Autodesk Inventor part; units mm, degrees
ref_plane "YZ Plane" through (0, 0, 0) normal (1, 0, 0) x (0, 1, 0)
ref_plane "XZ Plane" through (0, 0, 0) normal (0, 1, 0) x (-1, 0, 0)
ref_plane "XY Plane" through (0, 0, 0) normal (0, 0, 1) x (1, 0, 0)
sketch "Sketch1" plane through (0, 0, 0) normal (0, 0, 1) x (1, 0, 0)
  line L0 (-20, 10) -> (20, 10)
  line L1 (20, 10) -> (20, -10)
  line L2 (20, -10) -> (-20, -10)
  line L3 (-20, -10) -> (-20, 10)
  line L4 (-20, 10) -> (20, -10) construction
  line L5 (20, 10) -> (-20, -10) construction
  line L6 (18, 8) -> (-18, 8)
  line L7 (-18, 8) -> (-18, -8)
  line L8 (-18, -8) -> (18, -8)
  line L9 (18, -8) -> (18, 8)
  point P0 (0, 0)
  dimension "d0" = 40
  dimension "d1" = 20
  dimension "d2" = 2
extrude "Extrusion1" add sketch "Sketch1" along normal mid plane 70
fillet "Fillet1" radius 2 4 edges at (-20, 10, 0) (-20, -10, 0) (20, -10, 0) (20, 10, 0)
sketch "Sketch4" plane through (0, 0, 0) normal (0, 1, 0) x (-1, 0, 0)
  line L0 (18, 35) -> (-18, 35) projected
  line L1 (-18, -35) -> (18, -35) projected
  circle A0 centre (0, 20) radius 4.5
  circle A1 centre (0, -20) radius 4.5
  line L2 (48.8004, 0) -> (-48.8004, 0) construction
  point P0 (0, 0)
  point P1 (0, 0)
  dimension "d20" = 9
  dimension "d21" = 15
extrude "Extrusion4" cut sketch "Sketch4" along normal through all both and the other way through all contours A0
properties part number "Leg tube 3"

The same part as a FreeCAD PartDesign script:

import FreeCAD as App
import Part
import Sketcher
from FreeCAD import Vector
Q = App.Units.Quantity


def edges_at(feature, points):
    """Names of the edges that pass closest to the given points."""
    edges = feature.Shape.Edges
    near = lambda p: min(range(len(edges)), key=lambda i: edges[i].distToShape(Part.Vertex(*p))[0])
    return sorted({f"Edge{near(p) + 1}" for p in points})

doc = App.newDocument("Part")
body = doc.addObject("PartDesign::Body", "Body")

# Sketch on XY plane
sketch1 = doc.addObject("Sketcher::SketchObject", "Sketch")
body.addObject(sketch1)
sketch1.AttachmentSupport = (doc.XY_Plane, [""])
sketch1.MapMode = "FlatFace"
sketch1.addGeometry([
    Part.LineSegment(Vector(20, 10, 0), Vector(-20, 10, 0)),  # 0
    Part.LineSegment(Vector(-20, 10, 0), Vector(-20, -10, 0)),  # 1
    Part.LineSegment(Vector(-20, -10, 0), Vector(20, -10, 0)),  # 2
    Part.LineSegment(Vector(20, -10, 0), Vector(20, 10, 0)),  # 3
    Part.LineSegment(Vector(-18, 8, 0), Vector(18, 8, 0)),  # 4
    Part.LineSegment(Vector(18, 8, 0), Vector(18, -8, 0)),  # 5
    Part.LineSegment(Vector(18, -8, 0), Vector(-18, -8, 0)),  # 6
    Part.LineSegment(Vector(-18, -8, 0), Vector(-18, 8, 0)),  # 7
], False)
sketch1.addConstraint([
    Sketcher.Constraint("Coincident", 0, 2, 1, 1),
    Sketcher.Constraint("Coincident", 1, 2, 2, 1),
    Sketcher.Constraint("Coincident", 2, 2, 3, 1),
    Sketcher.Constraint("Coincident", 3, 2, 0, 1),
    Sketcher.Constraint("Coincident", 4, 2, 5, 1),
    Sketcher.Constraint("Coincident", 5, 2, 6, 1),
    Sketcher.Constraint("Coincident", 6, 2, 7, 1),
    Sketcher.Constraint("Coincident", 7, 2, 4, 1),
    Sketcher.Constraint("Horizontal", 0),
    Sketcher.Constraint("Vertical", 1),
    Sketcher.Constraint("Horizontal", 2),
    Sketcher.Constraint("Vertical", 3),
    Sketcher.Constraint("Horizontal", 4),
    Sketcher.Constraint("Vertical", 5),
    Sketcher.Constraint("Horizontal", 6),
    Sketcher.Constraint("Vertical", 7),
    Sketcher.Constraint("Symmetric", 0, 2, 2, 2, -1, 1),
    Sketcher.Constraint("Symmetric", 4, 2, 6, 2, -1, 1),
    Sketcher.Constraint("DistanceX", 0, 2, 0, 1, Q("40 mm")),
    Sketcher.Constraint("DistanceY", 1, 2, 1, 1, Q("20 mm")),
    Sketcher.Constraint("DistanceX", 4, 2, 3, 2, Q("2 mm")),
    Sketcher.Constraint("DistanceY", 4, 2, 3, 2, Q("2 mm")),
])
pad1 = doc.addObject("PartDesign::Pad", "Pad")
body.addObject(pad1)
pad1.Profile = sketch1
pad1.Length = 70
pad1.Midplane = True
doc.recompute()

fillet = doc.addObject("PartDesign::Fillet", "Fillet")
body.addObject(fillet)
fillet.Base = (pad1, edges_at(pad1, [
    (-20, 10, 0),
    (-20, -10, 0),
    (20, -10, 0),
    (20, 10, 0),
]))
fillet.Radius = 2

# Sketch on XZ plane
sketch2 = doc.addObject("Sketcher::SketchObject", "Sketch001")
body.addObject(sketch2)
sketch2.AttachmentSupport = (doc.XZ_Plane, [""])
sketch2.MapMode = "FlatFace"
sketch2.addGeometry(Part.Circle(Vector(0, 20, 0), Vector(0, 0, 1), 4.5), False)
sketch2.addConstraint([
    Sketcher.Constraint("PointOnObject", 0, 3, -2),
    Sketcher.Constraint("Diameter", 0, Q("9 mm")),
    Sketcher.Constraint("DistanceY", -1, 1, 0, 3, Q("20 mm")),
])
pocket1 = doc.addObject("PartDesign::Pocket", "Pocket")
body.addObject(pocket1)
pocket1.Profile = sketch2
pocket1.Type = "ThroughAll"
pocket1.Midplane = True

doc.recompute()
